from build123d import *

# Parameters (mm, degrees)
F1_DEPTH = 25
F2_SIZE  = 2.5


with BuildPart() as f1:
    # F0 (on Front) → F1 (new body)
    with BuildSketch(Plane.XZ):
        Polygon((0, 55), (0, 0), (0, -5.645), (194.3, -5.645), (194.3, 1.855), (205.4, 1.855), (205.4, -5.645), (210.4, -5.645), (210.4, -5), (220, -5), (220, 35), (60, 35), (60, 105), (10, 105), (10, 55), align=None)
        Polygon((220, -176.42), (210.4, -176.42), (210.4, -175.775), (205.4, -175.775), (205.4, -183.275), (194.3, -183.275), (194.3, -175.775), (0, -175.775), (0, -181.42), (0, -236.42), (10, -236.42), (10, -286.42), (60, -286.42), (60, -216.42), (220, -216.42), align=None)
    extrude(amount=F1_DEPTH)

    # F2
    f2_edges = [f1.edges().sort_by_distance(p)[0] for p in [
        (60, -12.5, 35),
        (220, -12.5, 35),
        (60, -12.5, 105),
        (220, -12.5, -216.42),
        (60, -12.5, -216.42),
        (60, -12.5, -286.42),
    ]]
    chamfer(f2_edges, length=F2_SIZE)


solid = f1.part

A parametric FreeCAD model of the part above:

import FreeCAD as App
import Part
import Sketcher


def edges_at(feature, points):
    """Names of the edges that pass closest to the given points."""
    edges = feature.Shape.Edges
    near = lambda p: min(range(len(edges)), key=lambda i: edges[i].distToShape(Part.Vertex(*p))[0])
    return sorted({f"Edge{near(p) + 1}" for p in points})


def add_polygon(sketch, points):
    """Adds a closed chain of lines whose ends are joined by coincident constraints."""
    first, n = sketch.GeometryCount, len(points)
    for a, b in zip(points, points[1:] + points[:1]):
        sketch.addGeometry(Part.LineSegment(App.Vector(*a, 0), App.Vector(*b, 0)), False)
    for i in range(n):
        sketch.addConstraint(Sketcher.Constraint("Coincident", first + i, 2, first + (i + 1) % n, 1))

doc = App.newDocument("Part")
params = doc.addObject("Spreadsheet::Sheet", "Params")
for row, (alias, value) in enumerate([
    ("sketch1_width", "5 mm"),
    ("sketch1_width2", "160 mm"),
    ("sketch1_width3", "50 mm"),
    ("sketch1_width4", "10 mm"),
    ("sketch1_height", "40 mm"),
    ("pad1_length", "25 mm"),
    ("chamfer_size", "2.5 mm"),
], start=1):
    params.set(f"A{row}", alias)
    params.set(f"B{row}", "=" + value)
    params.setAlias(f"B{row}", alias)

body = doc.addObject("PartDesign::Body", "Body")
body.AllowCompound = True

# Sketch on XZ plane
sketch1 = doc.addObject("Sketcher::SketchObject", "Sketch")
body.addObject(sketch1)
sketch1.AttachmentSupport = (doc.XZ_Plane, [""])
sketch1.MapMode = "FlatFace"
add_polygon(sketch1, [(0, 55), (0, -5.645), (194.3, -5.645), (194.3, 1.855), (205.4, 1.855), (205.4, -5.645), (210.4, -5.645), (210.4, -5), (220, -5), (220, 35), (60, 35), (60, 105), (10, 105), (10, 55)])  # lines 0-13
add_polygon(sketch1, [(220, -176.42), (210.4, -176.42), (210.4, -175.775), (205.4, -175.775), (205.4, -183.275), (194.3, -183.275), (194.3, -175.775), (0, -175.775), (0, -236.42), (10, -236.42), (10, -286.42), (60, -286.42), (60, -216.42), (220, -216.42)])  # lines 14-27
sketch1.addConstraint([
    Sketcher.Constraint("Vertical", 0),
    Sketcher.Constraint("Horizontal", 1),
    Sketcher.Constraint("Vertical", 2),
    Sketcher.Constraint("Horizontal", 3),
    Sketcher.Constraint("Vertical", 4),
    Sketcher.Constraint("Horizontal", 5),
    Sketcher.Constraint("Vertical", 6),
    Sketcher.Constraint("Horizontal", 7),
    Sketcher.Constraint("Vertical", 8),
    Sketcher.Constraint("Horizontal", 9),
    Sketcher.Constraint("Vertical", 10),
    Sketcher.Constraint("Horizontal", 11),
    Sketcher.Constraint("Vertical", 12),
    Sketcher.Constraint("Horizontal", 13),
    Sketcher.Constraint("Horizontal", 14),
    Sketcher.Constraint("Vertical", 15),
    Sketcher.Constraint("Horizontal", 16),
    Sketcher.Constraint("Vertical", 17),
    Sketcher.Constraint("Horizontal", 18),
    Sketcher.Constraint("Vertical", 19),
    Sketcher.Constraint("Horizontal", 20),
    Sketcher.Constraint("Vertical", 21),
    Sketcher.Constraint("Horizontal", 22),
    Sketcher.Constraint("Vertical", 23),
    Sketcher.Constraint("Horizontal", 24),
    Sketcher.Constraint("Vertical", 25),
    Sketcher.Constraint("Horizontal", 26),
    Sketcher.Constraint("Vertical", 27),
    Sketcher.Constraint("PointOnObject", 0, 2, -2),
    Sketcher.Constraint("PointOnObject", 20, 2, -2),
    Sketcher.Constraint("Horizontal", 1, 2, 4, 2),
    Sketcher.Constraint("Horizontal", 16, 2, 19, 2),
    Sketcher.Constraint("Vertical", 6, 2, 14, 2),
    Sketcher.Constraint("Vertical", 4, 2, 16, 2),
    Sketcher.Constraint("Vertical", 2, 2, 18, 2),
    Sketcher.Constraint("Vertical", 12, 2, 22, 2),
    Sketcher.Constraint("Vertical", 10, 2, 24, 2),
    Sketcher.Constraint("Vertical", 8, 2, 26, 2),
    Sketcher.Constraint("Equal", 24, 12),
    Sketcher.Constraint("Equal", 6, 15),
    Sketcher.Constraint("Equal", 4, 17),
    Sketcher.Constraint("Equal", 0, 21),
    Sketcher.Constraint("Equal", 12, 23),
    Sketcher.Constraint("Equal", 10, 25),
    Sketcher.Constraint("DistanceX", 5, 1, 5, 2, 5.0),
    Sketcher.Constraint("DistanceX", 9, 2, 9, 1, 160.0),
    Sketcher.Constraint("DistanceX", 11, 2, 11, 1, 50.0),
    Sketcher.Constraint("DistanceX", 13, 2, 13, 1, 10.0),
    Sketcher.Constraint("DistanceY", 8, 1, 8, 2, 40.0),
    Sketcher.Constraint("DistanceY", 10, 1, 10, 2, 70.0),
    Sketcher.Constraint("DistanceX", 1, 1, 1, 2, 194.3),
    Sketcher.Constraint("DistanceX", 3, 1, 3, 2, 11.1),
    Sketcher.Constraint("DistanceY", 2, 1, 2, 2, 7.5),
    Sketcher.Constraint("DistanceY", 6, 2, -1, 1, 5.0),
    Sketcher.Constraint("DistanceY", 0, 2, 0, 1, 60.645),
    Sketcher.Constraint("DistanceY", 14, 2, -1, 1, 176.42),
])
sketch1.setExpression("Constraints[72]", "Params.sketch1_width")
sketch1.setExpression("Constraints[73]", "Params.sketch1_width2")
sketch1.setExpression("Constraints[74]", "Params.sketch1_width3")
sketch1.setExpression("Constraints[75]", "Params.sketch1_width4")
sketch1.setExpression("Constraints[76]", "Params.sketch1_height")
pad1 = doc.addObject("PartDesign::Pad", "Pad")
body.addObject(pad1)
pad1.Profile = sketch1
pad1.setExpression("Length", "Params.pad1_length")
doc.recompute()

chamfer = doc.addObject("PartDesign::Chamfer", "Chamfer")
body.addObject(chamfer)
chamfer.Base = (pad1, edges_at(pad1, [
    (60, -12.5, 35),
    (220, -12.5, 35),
    (60, -12.5, 105),
    (220, -12.5, -216.42),
    (60, -12.5, -216.42),
    (60, -12.5, -286.42),
]))
chamfer.setExpression("Size", "Params.chamfer_size")

doc.recompute()
